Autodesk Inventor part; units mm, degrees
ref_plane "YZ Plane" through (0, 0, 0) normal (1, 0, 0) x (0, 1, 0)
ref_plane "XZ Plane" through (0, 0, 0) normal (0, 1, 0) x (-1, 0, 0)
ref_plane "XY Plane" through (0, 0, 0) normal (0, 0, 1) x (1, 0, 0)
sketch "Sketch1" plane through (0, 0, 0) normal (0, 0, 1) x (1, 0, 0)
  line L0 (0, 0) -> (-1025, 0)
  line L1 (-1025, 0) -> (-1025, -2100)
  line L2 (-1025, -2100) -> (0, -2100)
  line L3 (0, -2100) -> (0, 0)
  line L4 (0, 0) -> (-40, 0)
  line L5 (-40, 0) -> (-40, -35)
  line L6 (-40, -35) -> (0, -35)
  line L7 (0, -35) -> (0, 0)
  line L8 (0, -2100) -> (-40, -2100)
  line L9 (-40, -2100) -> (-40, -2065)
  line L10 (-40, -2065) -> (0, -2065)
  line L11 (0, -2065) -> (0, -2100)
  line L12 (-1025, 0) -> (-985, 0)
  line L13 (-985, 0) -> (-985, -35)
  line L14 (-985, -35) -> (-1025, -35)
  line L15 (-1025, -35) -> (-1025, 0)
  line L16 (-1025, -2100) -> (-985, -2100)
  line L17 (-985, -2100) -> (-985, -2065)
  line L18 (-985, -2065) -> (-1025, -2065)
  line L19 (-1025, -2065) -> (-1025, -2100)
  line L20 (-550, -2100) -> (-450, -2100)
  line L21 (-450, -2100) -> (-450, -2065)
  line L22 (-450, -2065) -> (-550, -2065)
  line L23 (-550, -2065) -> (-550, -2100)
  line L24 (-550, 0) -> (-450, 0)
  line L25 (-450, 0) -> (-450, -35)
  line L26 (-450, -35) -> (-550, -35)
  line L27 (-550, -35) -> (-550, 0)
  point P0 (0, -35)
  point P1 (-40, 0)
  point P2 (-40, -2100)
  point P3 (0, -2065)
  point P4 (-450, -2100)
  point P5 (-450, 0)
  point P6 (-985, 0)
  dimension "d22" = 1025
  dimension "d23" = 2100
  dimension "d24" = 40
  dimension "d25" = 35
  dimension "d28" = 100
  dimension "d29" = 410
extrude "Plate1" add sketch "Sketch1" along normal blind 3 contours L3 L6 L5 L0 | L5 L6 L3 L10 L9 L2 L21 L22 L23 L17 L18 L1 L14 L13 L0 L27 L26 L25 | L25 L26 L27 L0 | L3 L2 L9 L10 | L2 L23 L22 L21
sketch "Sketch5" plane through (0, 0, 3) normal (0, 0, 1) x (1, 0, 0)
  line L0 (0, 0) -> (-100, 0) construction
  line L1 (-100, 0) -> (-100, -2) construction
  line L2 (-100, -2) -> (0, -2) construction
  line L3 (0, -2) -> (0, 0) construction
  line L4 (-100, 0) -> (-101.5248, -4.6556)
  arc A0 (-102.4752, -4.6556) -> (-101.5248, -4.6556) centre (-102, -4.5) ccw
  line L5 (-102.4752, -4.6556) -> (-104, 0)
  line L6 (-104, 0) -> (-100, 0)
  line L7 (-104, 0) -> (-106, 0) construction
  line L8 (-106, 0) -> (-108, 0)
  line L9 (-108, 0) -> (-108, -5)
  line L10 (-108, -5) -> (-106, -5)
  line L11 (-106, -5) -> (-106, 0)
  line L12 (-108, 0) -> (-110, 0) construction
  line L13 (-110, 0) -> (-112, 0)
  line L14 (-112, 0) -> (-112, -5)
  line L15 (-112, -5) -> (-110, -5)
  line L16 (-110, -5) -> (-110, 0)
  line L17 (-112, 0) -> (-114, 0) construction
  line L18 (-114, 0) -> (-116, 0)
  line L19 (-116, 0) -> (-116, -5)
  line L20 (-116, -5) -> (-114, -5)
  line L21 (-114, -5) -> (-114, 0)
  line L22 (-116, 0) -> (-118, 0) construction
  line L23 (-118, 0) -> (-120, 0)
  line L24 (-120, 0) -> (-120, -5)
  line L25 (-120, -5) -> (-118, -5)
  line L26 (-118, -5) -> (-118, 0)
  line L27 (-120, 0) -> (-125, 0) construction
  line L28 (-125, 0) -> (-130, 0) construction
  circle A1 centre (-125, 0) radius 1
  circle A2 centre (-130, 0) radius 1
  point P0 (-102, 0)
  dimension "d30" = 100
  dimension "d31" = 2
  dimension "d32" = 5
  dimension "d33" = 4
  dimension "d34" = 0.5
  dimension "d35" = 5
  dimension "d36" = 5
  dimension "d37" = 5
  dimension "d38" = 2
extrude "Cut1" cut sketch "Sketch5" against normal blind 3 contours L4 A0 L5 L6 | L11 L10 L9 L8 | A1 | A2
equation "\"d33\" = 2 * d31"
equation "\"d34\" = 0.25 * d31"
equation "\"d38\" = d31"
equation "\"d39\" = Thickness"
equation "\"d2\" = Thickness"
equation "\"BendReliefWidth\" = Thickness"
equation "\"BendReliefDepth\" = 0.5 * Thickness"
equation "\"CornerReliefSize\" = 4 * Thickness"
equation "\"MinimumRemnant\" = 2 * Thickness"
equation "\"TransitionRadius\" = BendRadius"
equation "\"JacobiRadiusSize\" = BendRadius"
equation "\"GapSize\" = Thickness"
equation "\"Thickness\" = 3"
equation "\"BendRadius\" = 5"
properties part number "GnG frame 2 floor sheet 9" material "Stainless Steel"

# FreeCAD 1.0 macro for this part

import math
import FreeCAD as App
import Part
import Sketcher

V = App.Vector


def add_polygon(sketch, points):
    """Adds a closed chain of lines whose ends are joined by coincident constraints."""
    first, n = sketch.GeometryCount, len(points)
    for a, b in zip(points, points[1:] + points[:1]):
        sketch.addGeometry(Part.LineSegment(App.Vector(*a, 0), App.Vector(*b, 0)), False)
    for i in range(n):
        sketch.addConstraint(Sketcher.Constraint("Coincident", first + i, 2, first + (i + 1) % n, 1))

doc = App.newDocument("Part")
body = doc.addObject("PartDesign::Body", "Body")

# Sketch on XY plane
sketch1 = doc.addObject("Sketcher::SketchObject", "Sketch")
body.addObject(sketch1)
sketch1.AttachmentSupport = (doc.XY_Plane, [""])
sketch1.MapMode = "FlatFace"
add_polygon(sketch1, [(0, 0), (-985, 0), (-985, -35), (-1025, -35), (-1025, -2065), (-985, -2065), (-985, -2100), (0, -2100)])  # lines 0-7
sketch1.addConstraint([
    Sketcher.Constraint("Horizontal", 0),
    Sketcher.Constraint("Vertical", 1),
    Sketcher.Constraint("Horizontal", 2),
    Sketcher.Constraint("Vertical", 3),
    Sketcher.Constraint("Horizontal", 4),
    Sketcher.Constraint("Vertical", 5),
    Sketcher.Constraint("Horizontal", 6),
    Sketcher.Constraint("Vertical", 7),
    Sketcher.Constraint("Coincident", 7, 2, -1, 1),
    Sketcher.Constraint("Vertical", 1, 2, 4, 2),
    Sketcher.Constraint("Equal", 1, 5),
    Sketcher.Constraint("DistanceX", 2, 2, 2, 1, 40.0),
    Sketcher.Constraint("DistanceY", 1, 2, 1, 1, 35.0),
    Sketcher.Constraint("DistanceY", 7, 1, 7, 2, 2100.0),
    Sketcher.Constraint("DistanceX", 2, 2, -1, 1, 1025.0),
])
pad1 = doc.addObject("PartDesign::Pad", "Pad")
body.addObject(pad1)
pad1.Profile = sketch1
pad1.Length = 3

# Sketch on XY plane
sketch2 = doc.addObject("Sketcher::SketchObject", "Sketch001")
body.addObject(sketch2)
sketch2.AttachmentSupport = (doc.XY_Plane, [""])
sketch2.MapMode = "FlatFace"
sketch2.AttachmentOffset = App.Placement(V(0, 0, 3), App.Rotation())
sketch2.addGeometry(Part.LineSegment(V(-101.5, -4.7, 0), V(-100, 0, 0)), False)  # 0
sketch2.addGeometry(Part.LineSegment(V(-100, 0, 0), V(-104, 0, 0)), False)  # 1
sketch2.addGeometry(Part.LineSegment(V(-104, 0, 0), V(-102.5, -4.7, 0)), False)  # 2
sketch2.addGeometry(Part.ArcOfCircle(Part.Circle(V(-102, -4.5, 0), V(0, 0, 1), 0.5), math.radians(-162), math.radians(-18)), False)  # 3
add_polygon(sketch2, [(-106, -5), (-106, 0), (-108, 0), (-108, -5)])  # lines 4-7
sketch2.addGeometry(Part.Circle(V(-125, 0, 0), V(0, 0, 1), 1), False)  # 8
sketch2.addGeometry(Part.Circle(V(-130, 0, 0), V(0, 0, 1), 1), False)  # 9
sketch2.addConstraint([
    Sketcher.Constraint("Coincident", 0, 2, 1, 1),
    Sketcher.Constraint("Coincident", 1, 2, 2, 1),
    Sketcher.Constraint("Tangent", 2, 2, 3, 1),
    Sketcher.Constraint("Tangent", 3, 2, 0, 1),
    Sketcher.Constraint("Horizontal", 1),
    Sketcher.Constraint("Vertical", 4),
    Sketcher.Constraint("Horizontal", 5),
    Sketcher.Constraint("Vertical", 6),
    Sketcher.Constraint("Horizontal", 7),
    Sketcher.Constraint("Equal", 8, 9),
    Sketcher.Constraint("PointOnObject", 8, 3, -1),
    Sketcher.Constraint("PointOnObject", 9, 3, -1),
    Sketcher.Constraint("PointOnObject", 0, 2, -1),
    Sketcher.Constraint("PointOnObject", 4, 2, -1),
    Sketcher.Constraint("Horizontal", 2, 2, 3, 2),
    Sketcher.Constraint("Diameter", 8, 2.0),
    Sketcher.Constraint("Radius", 3, 0.5),
    Sketcher.Constraint("DistanceX", 1, 2, 1, 1, 4.0),
    Sketcher.Constraint("DistanceX", 5, 2, 5, 1, 2.0),
    Sketcher.Constraint("DistanceY", 4, 1, 4, 2, 5.0),
    Sketcher.Constraint("DistanceX", 0, 2, -1, 1, 100.0),
    Sketcher.Constraint("DistanceX", 9, 3, 8, 3, 5.0),
    Sketcher.Constraint("DistanceX", 4, 2, 1, 2, 2.0),
    Sketcher.Constraint("DistanceY", 6, 2, 3, 3, 0.5),
    Sketcher.Constraint("DistanceX", 8, 3, -1, 1, 125.0),
])
pocket1 = doc.addObject("PartDesign::Pocket", "Pocket")
body.addObject(pocket1)
pocket1.Profile = sketch2
pocket1.Length = 3

doc.recompute()
